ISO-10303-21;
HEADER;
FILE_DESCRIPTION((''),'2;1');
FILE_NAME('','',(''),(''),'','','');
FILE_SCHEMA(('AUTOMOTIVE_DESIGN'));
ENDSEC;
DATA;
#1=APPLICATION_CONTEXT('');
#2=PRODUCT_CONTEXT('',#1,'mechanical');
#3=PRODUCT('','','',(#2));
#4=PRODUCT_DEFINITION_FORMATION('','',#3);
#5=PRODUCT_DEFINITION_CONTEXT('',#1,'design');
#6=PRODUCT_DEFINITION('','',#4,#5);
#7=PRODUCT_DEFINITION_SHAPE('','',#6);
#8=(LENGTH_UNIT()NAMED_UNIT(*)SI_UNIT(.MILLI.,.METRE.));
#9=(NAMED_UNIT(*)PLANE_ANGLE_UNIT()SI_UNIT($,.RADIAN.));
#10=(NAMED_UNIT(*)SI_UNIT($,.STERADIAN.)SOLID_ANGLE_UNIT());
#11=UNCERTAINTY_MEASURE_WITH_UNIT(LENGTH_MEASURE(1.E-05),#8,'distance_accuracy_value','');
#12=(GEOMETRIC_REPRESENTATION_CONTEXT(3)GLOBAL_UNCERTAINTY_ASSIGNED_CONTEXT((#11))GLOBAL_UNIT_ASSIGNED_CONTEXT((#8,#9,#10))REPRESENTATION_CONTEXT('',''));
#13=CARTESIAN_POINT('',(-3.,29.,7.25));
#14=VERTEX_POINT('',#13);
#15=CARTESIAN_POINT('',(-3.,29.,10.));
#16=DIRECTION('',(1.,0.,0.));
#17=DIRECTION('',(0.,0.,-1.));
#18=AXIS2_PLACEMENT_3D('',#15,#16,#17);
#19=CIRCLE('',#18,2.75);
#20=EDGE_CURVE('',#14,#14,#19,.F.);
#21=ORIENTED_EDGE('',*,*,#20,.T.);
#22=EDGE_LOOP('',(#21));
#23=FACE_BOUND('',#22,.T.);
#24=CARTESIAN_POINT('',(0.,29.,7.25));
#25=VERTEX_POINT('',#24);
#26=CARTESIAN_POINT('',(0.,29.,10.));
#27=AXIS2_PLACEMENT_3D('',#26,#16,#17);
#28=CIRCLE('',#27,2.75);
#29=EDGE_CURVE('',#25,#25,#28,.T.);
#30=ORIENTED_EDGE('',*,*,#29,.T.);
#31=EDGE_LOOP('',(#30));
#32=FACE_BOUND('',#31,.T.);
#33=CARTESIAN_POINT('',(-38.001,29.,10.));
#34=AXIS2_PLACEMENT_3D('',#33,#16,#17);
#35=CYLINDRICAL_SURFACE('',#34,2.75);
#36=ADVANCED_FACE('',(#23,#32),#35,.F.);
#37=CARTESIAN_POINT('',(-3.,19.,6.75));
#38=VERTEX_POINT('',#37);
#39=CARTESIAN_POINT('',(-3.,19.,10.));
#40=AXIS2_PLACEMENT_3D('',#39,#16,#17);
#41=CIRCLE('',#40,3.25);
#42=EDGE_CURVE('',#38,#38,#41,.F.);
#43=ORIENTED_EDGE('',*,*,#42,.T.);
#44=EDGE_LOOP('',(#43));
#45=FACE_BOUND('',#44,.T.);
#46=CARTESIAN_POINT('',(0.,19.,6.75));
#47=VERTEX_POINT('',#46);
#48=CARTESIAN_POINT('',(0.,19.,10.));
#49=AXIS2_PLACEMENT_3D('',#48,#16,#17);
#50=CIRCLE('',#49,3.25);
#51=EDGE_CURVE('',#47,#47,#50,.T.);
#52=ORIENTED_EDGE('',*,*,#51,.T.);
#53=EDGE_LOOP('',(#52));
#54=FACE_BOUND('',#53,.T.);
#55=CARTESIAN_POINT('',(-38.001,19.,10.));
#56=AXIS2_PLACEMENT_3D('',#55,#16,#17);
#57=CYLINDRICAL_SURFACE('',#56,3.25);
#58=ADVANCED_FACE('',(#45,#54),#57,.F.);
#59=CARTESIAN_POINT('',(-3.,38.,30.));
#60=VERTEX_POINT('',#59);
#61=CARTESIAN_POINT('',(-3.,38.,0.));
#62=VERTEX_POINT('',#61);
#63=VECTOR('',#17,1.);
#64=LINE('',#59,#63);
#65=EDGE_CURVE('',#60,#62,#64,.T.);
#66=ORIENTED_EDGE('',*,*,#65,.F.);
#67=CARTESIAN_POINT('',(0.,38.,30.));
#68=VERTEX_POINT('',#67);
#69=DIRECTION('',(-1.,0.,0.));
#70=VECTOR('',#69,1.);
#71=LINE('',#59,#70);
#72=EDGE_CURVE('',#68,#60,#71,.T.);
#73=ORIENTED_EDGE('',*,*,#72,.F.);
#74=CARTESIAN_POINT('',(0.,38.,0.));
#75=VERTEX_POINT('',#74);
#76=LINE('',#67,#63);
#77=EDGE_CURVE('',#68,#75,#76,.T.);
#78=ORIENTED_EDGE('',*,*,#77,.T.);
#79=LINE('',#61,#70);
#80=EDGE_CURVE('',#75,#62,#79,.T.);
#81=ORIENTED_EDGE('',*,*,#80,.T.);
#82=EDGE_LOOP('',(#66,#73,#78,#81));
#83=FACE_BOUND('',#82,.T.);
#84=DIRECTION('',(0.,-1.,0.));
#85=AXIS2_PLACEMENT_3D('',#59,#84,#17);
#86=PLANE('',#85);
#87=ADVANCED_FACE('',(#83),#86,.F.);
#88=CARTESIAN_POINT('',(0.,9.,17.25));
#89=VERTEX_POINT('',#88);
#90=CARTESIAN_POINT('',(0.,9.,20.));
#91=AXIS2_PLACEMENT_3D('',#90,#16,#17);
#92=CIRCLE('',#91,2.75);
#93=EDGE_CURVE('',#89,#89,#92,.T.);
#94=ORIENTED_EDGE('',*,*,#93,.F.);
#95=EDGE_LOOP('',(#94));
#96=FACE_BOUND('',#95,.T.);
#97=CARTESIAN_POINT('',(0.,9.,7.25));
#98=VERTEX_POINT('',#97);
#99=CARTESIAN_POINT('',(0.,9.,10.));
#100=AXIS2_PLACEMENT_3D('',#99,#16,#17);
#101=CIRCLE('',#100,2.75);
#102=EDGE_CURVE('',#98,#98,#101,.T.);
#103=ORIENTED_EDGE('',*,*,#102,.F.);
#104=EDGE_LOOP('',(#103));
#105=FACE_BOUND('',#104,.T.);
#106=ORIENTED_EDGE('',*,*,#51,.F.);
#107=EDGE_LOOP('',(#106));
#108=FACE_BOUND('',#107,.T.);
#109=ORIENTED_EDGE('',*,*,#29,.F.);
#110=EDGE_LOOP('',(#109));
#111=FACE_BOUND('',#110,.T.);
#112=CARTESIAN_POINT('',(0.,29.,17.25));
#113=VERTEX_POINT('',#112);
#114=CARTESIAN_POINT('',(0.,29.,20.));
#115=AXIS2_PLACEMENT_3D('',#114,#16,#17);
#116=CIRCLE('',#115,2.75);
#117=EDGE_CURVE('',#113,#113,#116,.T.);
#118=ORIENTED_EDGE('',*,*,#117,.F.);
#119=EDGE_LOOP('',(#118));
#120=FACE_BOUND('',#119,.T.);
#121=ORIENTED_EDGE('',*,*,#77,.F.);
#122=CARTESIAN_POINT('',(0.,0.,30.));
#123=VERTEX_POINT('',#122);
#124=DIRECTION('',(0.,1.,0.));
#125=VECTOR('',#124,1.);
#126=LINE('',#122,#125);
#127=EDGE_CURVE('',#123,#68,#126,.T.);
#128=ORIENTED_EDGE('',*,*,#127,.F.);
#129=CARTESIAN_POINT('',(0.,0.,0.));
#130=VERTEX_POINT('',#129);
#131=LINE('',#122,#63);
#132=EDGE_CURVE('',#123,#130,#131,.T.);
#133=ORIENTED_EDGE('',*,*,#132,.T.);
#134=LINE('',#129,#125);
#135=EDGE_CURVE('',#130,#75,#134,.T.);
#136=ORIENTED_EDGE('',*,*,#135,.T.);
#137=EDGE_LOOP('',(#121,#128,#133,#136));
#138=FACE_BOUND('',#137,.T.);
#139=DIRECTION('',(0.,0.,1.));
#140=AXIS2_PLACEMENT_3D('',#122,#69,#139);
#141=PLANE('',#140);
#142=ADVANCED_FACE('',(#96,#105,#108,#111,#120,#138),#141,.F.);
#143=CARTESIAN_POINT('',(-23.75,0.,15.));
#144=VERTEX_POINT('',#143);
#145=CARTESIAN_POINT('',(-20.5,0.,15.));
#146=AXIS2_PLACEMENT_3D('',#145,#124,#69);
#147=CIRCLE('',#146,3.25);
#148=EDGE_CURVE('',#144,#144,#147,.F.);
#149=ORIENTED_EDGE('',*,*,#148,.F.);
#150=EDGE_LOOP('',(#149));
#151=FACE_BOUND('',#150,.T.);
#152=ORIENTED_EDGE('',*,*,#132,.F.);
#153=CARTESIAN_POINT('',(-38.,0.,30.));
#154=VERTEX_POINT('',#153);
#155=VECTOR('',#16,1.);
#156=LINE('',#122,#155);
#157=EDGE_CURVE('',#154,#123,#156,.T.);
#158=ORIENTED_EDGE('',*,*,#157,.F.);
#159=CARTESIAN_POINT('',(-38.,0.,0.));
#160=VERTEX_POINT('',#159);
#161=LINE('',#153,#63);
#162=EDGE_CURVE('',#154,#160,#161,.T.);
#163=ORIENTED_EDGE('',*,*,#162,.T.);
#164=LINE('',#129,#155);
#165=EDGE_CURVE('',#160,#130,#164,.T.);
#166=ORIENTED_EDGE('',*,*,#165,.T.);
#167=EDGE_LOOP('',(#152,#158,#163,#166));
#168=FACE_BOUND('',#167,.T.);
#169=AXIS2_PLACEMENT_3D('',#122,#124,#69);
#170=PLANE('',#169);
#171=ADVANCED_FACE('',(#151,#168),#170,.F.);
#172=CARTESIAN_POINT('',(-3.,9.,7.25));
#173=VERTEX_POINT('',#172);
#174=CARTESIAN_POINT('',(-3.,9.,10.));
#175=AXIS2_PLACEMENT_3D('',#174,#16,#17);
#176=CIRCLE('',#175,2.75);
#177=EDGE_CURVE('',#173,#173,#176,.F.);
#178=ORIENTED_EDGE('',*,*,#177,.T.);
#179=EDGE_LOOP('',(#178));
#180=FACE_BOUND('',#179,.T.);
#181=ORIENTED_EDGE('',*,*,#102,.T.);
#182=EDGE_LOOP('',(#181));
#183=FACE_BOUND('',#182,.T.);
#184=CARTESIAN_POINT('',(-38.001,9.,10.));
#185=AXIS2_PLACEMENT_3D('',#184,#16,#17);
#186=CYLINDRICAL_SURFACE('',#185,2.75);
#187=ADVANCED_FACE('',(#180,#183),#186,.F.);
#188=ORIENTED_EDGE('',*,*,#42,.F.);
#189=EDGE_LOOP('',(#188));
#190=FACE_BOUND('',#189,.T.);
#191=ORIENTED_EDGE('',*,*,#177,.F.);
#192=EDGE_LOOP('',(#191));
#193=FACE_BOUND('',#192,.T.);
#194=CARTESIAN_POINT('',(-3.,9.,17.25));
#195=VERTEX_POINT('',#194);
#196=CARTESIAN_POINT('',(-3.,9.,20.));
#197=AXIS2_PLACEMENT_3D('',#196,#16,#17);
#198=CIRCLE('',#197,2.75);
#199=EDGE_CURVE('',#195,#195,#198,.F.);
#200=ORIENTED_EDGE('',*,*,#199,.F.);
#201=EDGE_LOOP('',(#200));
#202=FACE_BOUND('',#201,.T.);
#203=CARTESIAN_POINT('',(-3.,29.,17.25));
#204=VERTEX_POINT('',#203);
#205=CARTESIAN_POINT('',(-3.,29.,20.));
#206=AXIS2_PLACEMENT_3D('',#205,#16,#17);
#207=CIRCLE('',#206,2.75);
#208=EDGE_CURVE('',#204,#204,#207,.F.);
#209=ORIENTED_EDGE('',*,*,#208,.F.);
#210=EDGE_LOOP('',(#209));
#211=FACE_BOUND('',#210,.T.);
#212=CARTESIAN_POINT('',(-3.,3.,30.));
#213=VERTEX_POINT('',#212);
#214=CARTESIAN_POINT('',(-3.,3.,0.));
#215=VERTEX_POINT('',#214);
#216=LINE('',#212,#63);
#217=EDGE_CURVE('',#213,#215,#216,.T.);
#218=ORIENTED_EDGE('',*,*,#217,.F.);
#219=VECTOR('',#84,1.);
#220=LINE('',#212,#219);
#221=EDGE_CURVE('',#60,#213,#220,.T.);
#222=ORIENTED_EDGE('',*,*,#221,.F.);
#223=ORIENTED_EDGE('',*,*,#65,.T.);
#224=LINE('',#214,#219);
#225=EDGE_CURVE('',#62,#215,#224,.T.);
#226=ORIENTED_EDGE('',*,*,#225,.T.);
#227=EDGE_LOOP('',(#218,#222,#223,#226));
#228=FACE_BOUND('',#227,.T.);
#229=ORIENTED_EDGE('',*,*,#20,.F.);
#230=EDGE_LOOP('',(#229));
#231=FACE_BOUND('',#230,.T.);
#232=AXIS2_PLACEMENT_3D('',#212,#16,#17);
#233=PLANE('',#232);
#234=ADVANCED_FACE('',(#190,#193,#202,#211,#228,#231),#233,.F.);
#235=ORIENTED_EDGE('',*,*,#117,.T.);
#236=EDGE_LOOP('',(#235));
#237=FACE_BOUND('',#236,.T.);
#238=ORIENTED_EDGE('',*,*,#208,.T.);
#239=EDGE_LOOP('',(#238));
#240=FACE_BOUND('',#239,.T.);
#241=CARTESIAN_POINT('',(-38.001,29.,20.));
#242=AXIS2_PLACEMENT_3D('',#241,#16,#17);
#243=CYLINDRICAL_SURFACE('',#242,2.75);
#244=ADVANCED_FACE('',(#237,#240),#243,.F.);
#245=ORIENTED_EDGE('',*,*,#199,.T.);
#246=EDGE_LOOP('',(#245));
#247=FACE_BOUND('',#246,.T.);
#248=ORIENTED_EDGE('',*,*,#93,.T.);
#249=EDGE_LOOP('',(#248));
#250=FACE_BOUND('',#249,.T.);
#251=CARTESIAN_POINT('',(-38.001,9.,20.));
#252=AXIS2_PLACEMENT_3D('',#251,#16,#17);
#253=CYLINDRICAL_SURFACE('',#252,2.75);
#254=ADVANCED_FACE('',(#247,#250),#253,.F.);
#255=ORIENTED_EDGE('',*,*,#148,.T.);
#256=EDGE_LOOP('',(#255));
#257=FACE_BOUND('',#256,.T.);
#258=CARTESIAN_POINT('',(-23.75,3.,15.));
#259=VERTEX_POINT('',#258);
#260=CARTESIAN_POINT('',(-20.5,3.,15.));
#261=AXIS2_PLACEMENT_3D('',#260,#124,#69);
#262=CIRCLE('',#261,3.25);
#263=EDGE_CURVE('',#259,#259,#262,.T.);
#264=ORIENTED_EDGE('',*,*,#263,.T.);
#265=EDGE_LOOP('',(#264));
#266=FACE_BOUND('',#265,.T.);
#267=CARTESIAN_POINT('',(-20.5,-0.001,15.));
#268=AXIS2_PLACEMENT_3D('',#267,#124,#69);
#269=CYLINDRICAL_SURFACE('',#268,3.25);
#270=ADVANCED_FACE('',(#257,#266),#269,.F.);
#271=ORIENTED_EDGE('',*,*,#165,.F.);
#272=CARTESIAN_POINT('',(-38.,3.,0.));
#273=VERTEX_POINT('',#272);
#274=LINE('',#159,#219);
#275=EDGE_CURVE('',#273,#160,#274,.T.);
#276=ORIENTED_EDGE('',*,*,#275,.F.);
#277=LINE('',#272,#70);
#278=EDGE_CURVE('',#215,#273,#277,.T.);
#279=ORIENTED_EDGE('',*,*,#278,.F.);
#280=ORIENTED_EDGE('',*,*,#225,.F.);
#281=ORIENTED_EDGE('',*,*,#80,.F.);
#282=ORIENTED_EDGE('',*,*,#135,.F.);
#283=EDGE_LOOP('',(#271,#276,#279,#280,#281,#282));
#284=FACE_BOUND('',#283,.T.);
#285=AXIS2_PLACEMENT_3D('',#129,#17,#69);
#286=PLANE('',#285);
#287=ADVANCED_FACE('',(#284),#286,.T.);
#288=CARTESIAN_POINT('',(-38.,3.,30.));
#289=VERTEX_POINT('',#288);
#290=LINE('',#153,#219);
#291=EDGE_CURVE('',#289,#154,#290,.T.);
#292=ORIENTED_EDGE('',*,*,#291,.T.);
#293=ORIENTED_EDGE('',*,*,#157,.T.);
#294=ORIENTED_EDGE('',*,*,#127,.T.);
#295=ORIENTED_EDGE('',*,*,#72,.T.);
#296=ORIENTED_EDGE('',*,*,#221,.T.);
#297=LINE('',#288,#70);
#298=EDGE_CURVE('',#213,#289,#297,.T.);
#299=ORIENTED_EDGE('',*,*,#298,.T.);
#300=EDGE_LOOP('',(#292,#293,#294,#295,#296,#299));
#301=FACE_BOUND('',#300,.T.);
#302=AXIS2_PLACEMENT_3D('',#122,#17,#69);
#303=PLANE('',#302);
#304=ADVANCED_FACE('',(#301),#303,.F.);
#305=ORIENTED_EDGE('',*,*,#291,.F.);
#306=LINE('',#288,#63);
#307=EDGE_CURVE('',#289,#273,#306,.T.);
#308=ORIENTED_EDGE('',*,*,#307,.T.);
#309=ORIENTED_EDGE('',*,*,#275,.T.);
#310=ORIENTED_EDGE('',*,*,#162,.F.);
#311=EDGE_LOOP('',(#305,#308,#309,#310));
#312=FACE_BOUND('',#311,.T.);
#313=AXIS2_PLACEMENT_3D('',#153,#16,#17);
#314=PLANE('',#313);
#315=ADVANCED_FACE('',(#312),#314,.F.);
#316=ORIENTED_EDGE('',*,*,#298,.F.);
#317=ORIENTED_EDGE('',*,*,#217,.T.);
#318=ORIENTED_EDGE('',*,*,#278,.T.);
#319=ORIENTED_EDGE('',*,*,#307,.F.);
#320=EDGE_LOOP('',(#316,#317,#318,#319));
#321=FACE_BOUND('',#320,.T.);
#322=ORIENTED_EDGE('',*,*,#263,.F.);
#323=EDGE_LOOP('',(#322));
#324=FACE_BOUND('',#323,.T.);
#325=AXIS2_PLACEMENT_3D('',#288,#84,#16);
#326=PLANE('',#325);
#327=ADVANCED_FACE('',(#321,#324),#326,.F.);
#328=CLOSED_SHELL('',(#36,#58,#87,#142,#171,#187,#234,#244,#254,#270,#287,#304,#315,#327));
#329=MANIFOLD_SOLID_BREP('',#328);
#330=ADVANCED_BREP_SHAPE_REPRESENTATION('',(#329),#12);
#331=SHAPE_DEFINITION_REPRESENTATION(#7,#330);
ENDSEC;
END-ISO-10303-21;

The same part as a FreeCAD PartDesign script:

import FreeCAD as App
import Part
import Sketcher
from FreeCAD import Vector
Q = App.Units.Quantity

doc = App.newDocument("Part")
body = doc.addObject("PartDesign::Body", "Body")

# Sketch on XY plane
sketch1 = body.newObject("Sketcher::SketchObject", "Sketch")
sketch1.AttachmentSupport = (doc.getObject("XY_Plane"), [""])
sketch1.MapMode = "FlatFace"
sketch1.addGeometry([
    Part.LineSegment(Vector(0, 0, 0), Vector(0, 38, 0)),  # 0
    Part.LineSegment(Vector(0, 38, 0), Vector(-3, 38, 0)),  # 1
    Part.LineSegment(Vector(-3, 38, 0), Vector(-3, 3, 0)),  # 2
    Part.LineSegment(Vector(-3, 3, 0), Vector(-38, 3, 0)),  # 3
    Part.LineSegment(Vector(-38, 3, 0), Vector(-38, 0, 0)),  # 4
    Part.LineSegment(Vector(-38, 0, 0), Vector(0, 0, 0)),  # 5
], False)
sketch1.addConstraint([
    Sketcher.Constraint("Coincident", 0, 2, 1, 1),
    Sketcher.Constraint("Coincident", 1, 2, 2, 1),
    Sketcher.Constraint("Coincident", 2, 2, 3, 1),
    Sketcher.Constraint("Coincident", 3, 2, 4, 1),
    Sketcher.Constraint("Coincident", 4, 2, 5, 1),
    Sketcher.Constraint("Coincident", 5, 2, 0, 1),
    Sketcher.Constraint("Vertical", 0),
    Sketcher.Constraint("Horizontal", 1),
    Sketcher.Constraint("Vertical", 2),
    Sketcher.Constraint("Horizontal", 3),
    Sketcher.Constraint("Vertical", 4),
    Sketcher.Constraint("Horizontal", 5),
    Sketcher.Constraint("Coincident", 5, 2, -1, 1),
    Sketcher.Constraint("Equal", 5, 0),
    Sketcher.Constraint("Equal", 3, 2),
    Sketcher.Constraint("DistanceX", 1, 2, 1, 1, Q("3 mm")),
    Sketcher.Constraint("DistanceX", 3, 2, 3, 1, Q("35 mm")),
])
pad1 = body.newObject("PartDesign::Pad", "Pad")
pad1.Profile = sketch1
pad1.Length = 30

# Sketch on YZ plane
sketch2 = body.newObject("Sketcher::SketchObject", "Sketch001")
sketch2.AttachmentSupport = (doc.getObject("YZ_Plane"), [""])
sketch2.MapMode = "FlatFace"
sketch2.addGeometry(Part.Circle(Vector(29, 10, 0), Vector(0, 0, 1), 2.8), False)
sketch2.addConstraint([
    Sketcher.Constraint("Diameter", 0, Q("5.5 mm")),
    Sketcher.Constraint("DistanceX", -1, 1, 0, 3, Q("29 mm")),
    Sketcher.Constraint("DistanceY", -1, 1, 0, 3, Q("10 mm")),
])
pocket1 = body.newObject("PartDesign::Pocket", "Pocket")
pocket1.Profile = sketch2
pocket1.Type = "UpToFirst"

# Sketch on YZ plane
sketch3 = body.newObject("Sketcher::SketchObject", "Sketch002")
sketch3.AttachmentSupport = (doc.getObject("YZ_Plane"), [""])
sketch3.MapMode = "FlatFace"
sketch3.addGeometry(Part.Circle(Vector(19, 10, 0), Vector(0, 0, 1), 3.2), False)
sketch3.addConstraint([
    Sketcher.Constraint("Diameter", 0, Q("6.5 mm")),
    Sketcher.Constraint("DistanceX", -1, 1, 0, 3, Q("19 mm")),
    Sketcher.Constraint("DistanceY", -1, 1, 0, 3, Q("10 mm")),
])
pocket2 = body.newObject("PartDesign::Pocket", "Pocket001")
pocket2.Profile = sketch3
pocket2.Type = "UpToFirst"

# Sketch on YZ plane
sketch4 = body.newObject("Sketcher::SketchObject", "Sketch003")
sketch4.AttachmentSupport = (doc.getObject("YZ_Plane"), [""])
sketch4.MapMode = "FlatFace"
sketch4.addGeometry(Part.Circle(Vector(9, 10, 0), Vector(0, 0, 1), 2.8), False)
sketch4.addConstraint([
    Sketcher.Constraint("Diameter", 0, Q("5.5 mm")),
    Sketcher.Constraint("DistanceX", -1, 1, 0, 3, Q("9 mm")),
    Sketcher.Constraint("DistanceY", -1, 1, 0, 3, Q("10 mm")),
])
pocket3 = body.newObject("PartDesign::Pocket", "Pocket002")
pocket3.Profile = sketch4
pocket3.Type = "UpToFirst"

# Sketch on YZ plane
sketch5 = body.newObject("Sketcher::SketchObject", "Sketch004")
sketch5.AttachmentSupport = (doc.getObject("YZ_Plane"), [""])
sketch5.MapMode = "FlatFace"
sketch5.addGeometry(Part.Circle(Vector(29, 20, 0), Vector(0, 0, 1), 2.8), False)
sketch5.addConstraint([
    Sketcher.Constraint("Diameter", 0, Q("5.5 mm")),
    Sketcher.Constraint("DistanceX", -1, 1, 0, 3, Q("29 mm")),
    Sketcher.Constraint("DistanceY", -1, 1, 0, 3, Q("20 mm")),
])
pocket4 = body.newObject("PartDesign::Pocket", "Pocket003")
pocket4.Profile = sketch5
pocket4.Type = "UpToFirst"

# Sketch on YZ plane
sketch6 = body.newObject("Sketcher::SketchObject", "Sketch005")
sketch6.AttachmentSupport = (doc.getObject("YZ_Plane"), [""])
sketch6.MapMode = "FlatFace"
sketch6.addGeometry(Part.Circle(Vector(9, 20, 0), Vector(0, 0, 1), 2.8), False)
sketch6.addConstraint([
    Sketcher.Constraint("Diameter", 0, Q("5.5 mm")),
    Sketcher.Constraint("DistanceX", -1, 1, 0, 3, Q("9 mm")),
    Sketcher.Constraint("DistanceY", -1, 1, 0, 3, Q("20 mm")),
])
pocket5 = body.newObject("PartDesign::Pocket", "Pocket004")
pocket5.Profile = sketch6
pocket5.Type = "UpToFirst"

# Sketch on XZ plane
sketch7 = body.newObject("Sketcher::SketchObject", "Sketch006")
sketch7.AttachmentSupport = (doc.getObject("XZ_Plane"), [""])
sketch7.MapMode = "FlatFace"
sketch7.AttachmentOffset = App.Placement(Vector(0, 0, -3), App.Rotation())
sketch7.addGeometry(Part.Circle(Vector(-20.5, 15, 0), Vector(0, 0, 1), 3.2), False)
sketch7.addConstraint([
    Sketcher.Constraint("Diameter", 0, Q("6.5 mm")),
    Sketcher.Constraint("DistanceY", -1, 1, 0, 3, Q("15 mm")),
    Sketcher.Constraint("DistanceX", 0, 3, -1, 1, Q("20.5 mm")),
])
pocket6 = body.newObject("PartDesign::Pocket", "Pocket005")
pocket6.Profile = sketch7
pocket6.Type = "UpToFirst"
pocket6.Reversed = True

doc.recompute()
